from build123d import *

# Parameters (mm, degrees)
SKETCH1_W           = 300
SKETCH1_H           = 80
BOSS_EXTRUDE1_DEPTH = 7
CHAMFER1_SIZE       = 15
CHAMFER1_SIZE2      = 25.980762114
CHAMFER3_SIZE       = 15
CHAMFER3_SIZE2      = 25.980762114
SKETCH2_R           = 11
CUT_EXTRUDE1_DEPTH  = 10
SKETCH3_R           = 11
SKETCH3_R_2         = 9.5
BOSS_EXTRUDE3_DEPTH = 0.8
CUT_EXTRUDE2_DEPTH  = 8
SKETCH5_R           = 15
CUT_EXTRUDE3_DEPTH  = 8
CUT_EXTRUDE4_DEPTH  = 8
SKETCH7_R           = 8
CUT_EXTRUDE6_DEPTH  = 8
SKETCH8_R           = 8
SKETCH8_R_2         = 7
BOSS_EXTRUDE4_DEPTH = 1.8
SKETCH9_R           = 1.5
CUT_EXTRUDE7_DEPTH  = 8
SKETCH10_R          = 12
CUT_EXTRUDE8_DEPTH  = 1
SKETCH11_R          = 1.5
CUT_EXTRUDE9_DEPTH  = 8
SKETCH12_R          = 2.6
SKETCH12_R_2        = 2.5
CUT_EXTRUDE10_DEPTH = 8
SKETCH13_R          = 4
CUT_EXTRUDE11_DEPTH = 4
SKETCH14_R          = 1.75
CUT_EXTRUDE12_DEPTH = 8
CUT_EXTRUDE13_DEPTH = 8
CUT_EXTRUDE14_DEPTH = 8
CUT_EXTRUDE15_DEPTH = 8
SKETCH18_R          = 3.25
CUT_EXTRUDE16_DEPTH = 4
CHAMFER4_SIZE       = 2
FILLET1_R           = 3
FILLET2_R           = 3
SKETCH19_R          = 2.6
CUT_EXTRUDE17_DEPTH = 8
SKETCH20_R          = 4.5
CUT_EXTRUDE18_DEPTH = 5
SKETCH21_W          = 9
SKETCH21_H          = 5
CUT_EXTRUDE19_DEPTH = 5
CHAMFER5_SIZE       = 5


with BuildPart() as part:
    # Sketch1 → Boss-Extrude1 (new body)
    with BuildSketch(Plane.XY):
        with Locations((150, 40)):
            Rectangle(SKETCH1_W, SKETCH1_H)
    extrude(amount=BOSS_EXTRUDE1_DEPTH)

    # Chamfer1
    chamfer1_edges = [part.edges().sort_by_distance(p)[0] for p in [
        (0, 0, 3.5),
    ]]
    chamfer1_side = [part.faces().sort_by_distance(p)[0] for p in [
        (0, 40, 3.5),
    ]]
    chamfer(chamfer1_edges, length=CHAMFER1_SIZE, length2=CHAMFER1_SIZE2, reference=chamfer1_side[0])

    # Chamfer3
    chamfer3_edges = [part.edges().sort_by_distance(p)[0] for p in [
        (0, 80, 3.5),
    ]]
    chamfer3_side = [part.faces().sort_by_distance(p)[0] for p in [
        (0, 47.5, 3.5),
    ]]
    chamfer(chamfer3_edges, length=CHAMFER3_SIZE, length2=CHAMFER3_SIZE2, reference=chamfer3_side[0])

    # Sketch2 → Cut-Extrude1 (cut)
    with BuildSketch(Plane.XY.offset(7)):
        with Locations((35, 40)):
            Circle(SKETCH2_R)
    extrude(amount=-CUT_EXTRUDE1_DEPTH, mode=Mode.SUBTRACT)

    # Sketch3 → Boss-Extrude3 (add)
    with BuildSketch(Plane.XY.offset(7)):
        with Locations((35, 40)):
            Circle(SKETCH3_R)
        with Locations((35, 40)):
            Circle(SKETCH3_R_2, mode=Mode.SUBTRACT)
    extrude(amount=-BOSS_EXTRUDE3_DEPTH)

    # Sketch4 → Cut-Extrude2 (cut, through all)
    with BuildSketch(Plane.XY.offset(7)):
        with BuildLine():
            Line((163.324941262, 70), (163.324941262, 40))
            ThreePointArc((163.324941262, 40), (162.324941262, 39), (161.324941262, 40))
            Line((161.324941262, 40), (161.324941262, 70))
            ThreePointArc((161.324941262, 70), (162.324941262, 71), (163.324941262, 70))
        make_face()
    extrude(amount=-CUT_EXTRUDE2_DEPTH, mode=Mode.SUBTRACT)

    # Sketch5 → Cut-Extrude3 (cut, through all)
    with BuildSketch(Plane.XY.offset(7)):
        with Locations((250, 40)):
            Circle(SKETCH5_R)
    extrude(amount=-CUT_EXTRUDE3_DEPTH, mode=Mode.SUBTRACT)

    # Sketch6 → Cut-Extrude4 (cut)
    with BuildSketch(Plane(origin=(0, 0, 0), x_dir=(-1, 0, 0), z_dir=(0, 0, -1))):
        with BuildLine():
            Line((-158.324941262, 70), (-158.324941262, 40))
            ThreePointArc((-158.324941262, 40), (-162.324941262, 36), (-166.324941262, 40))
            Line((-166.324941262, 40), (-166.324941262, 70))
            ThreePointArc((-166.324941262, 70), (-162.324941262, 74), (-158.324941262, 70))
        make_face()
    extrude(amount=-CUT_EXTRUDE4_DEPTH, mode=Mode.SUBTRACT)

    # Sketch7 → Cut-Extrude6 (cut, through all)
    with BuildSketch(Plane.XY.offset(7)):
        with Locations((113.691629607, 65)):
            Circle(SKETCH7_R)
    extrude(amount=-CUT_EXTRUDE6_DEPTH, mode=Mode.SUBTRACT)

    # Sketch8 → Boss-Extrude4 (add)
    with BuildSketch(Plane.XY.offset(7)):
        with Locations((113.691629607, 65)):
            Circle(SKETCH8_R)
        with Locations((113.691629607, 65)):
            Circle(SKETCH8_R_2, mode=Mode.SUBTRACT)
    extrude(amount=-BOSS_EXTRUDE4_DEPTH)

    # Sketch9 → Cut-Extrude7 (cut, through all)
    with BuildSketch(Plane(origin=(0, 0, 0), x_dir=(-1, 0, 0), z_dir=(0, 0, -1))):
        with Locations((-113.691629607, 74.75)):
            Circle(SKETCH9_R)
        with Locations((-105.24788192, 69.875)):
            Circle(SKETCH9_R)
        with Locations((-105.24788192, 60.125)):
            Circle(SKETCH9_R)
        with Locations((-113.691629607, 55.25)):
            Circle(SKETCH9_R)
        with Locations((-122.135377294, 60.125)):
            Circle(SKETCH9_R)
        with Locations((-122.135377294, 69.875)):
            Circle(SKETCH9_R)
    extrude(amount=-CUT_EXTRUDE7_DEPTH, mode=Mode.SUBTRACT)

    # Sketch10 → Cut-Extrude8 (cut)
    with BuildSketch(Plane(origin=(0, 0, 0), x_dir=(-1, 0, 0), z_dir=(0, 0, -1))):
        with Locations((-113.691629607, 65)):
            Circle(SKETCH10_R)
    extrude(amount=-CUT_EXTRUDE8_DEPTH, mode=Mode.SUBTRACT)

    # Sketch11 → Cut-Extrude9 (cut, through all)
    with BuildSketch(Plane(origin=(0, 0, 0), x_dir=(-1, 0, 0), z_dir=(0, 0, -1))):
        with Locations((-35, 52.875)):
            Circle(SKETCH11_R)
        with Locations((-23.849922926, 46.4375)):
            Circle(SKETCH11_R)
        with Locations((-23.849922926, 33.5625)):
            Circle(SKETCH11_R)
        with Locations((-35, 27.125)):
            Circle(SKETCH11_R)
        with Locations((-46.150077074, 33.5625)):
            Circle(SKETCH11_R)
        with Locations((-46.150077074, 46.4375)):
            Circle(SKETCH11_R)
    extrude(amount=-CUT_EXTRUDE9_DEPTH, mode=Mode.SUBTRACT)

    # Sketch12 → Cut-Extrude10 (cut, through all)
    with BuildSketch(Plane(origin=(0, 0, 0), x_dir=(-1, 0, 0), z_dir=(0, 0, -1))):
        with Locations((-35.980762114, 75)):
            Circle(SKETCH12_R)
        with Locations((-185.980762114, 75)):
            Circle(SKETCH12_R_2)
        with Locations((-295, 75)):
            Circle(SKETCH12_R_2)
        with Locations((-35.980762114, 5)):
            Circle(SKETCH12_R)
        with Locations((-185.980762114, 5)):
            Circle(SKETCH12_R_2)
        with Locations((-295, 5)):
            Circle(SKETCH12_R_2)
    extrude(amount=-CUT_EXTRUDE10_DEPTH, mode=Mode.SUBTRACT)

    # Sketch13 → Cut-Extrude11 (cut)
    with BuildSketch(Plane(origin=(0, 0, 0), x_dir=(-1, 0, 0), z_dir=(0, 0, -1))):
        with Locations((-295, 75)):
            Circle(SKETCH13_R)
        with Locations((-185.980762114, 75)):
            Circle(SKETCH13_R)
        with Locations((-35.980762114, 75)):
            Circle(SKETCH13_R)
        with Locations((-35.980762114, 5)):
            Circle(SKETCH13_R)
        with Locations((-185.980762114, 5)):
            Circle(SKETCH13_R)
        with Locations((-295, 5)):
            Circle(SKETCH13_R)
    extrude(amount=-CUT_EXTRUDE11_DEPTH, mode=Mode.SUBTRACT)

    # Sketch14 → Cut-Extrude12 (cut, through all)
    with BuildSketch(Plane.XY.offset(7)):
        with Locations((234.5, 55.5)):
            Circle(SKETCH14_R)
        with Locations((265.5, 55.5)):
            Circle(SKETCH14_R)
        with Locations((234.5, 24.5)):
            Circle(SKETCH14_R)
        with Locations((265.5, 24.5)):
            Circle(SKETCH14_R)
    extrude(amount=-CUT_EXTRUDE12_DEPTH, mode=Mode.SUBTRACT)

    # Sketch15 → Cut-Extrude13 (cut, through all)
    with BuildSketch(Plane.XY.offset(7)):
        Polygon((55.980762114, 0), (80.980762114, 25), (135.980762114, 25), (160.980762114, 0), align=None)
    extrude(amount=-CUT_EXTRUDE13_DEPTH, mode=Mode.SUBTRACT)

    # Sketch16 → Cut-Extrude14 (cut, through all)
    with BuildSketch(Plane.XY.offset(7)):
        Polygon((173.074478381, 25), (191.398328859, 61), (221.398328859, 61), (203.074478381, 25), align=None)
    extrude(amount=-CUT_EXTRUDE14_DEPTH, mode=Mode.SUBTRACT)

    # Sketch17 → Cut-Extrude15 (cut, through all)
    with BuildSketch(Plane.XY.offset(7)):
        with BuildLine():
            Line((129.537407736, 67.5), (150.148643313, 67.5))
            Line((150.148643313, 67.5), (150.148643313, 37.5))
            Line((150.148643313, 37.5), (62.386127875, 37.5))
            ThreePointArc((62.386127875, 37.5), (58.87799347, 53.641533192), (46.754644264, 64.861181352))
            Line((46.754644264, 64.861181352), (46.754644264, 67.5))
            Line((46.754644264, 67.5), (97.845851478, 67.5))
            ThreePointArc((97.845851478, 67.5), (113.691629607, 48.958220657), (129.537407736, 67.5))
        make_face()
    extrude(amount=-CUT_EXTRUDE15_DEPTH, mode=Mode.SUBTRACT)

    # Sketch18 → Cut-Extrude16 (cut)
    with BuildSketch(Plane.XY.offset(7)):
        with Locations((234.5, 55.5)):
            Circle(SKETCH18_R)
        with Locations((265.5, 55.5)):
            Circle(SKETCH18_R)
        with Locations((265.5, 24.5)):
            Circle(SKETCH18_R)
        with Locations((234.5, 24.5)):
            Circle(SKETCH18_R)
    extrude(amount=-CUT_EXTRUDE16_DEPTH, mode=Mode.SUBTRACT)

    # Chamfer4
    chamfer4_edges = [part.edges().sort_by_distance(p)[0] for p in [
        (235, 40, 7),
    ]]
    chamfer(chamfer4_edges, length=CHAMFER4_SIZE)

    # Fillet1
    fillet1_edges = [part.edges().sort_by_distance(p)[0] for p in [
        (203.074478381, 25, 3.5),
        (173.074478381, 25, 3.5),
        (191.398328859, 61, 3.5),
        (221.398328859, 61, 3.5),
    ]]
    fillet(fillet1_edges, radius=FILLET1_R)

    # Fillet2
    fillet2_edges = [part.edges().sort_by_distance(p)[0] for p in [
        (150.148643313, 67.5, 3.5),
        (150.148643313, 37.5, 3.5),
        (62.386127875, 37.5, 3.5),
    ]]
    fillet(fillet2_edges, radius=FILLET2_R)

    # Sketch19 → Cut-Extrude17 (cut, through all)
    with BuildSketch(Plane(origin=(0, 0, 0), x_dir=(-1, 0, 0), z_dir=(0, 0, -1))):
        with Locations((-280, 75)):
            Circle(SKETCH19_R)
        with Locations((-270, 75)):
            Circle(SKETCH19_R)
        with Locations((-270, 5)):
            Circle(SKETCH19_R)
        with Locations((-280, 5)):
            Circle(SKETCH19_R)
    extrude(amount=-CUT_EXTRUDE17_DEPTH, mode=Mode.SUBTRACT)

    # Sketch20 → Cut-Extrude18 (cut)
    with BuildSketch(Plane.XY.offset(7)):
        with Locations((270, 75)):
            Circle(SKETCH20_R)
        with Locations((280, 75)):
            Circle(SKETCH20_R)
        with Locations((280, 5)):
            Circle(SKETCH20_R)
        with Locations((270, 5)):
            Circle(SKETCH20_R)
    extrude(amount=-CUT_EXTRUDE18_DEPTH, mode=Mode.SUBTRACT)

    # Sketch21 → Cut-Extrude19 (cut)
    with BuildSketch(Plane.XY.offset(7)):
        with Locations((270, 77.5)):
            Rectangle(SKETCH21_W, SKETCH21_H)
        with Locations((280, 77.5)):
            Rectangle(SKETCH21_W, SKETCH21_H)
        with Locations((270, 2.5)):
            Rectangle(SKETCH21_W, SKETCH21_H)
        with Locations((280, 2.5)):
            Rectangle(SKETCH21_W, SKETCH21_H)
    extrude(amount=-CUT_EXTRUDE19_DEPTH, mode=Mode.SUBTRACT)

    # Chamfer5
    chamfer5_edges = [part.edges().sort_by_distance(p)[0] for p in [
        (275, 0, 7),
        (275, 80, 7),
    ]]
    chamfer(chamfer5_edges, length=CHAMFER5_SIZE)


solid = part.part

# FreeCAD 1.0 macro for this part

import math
import FreeCAD as App
import Part
import Sketcher

V = App.Vector


def edges_at(feature, points):
    """Names of the edges that pass closest to the given points."""
    edges = feature.Shape.Edges
    near = lambda p: min(range(len(edges)), key=lambda i: edges[i].distToShape(Part.Vertex(*p))[0])
    return sorted({f"Edge{near(p) + 1}" for p in points})

doc = App.newDocument("Part")
body = doc.addObject("PartDesign::Body", "Body")

sketch1 = doc.addObject("Sketcher::SketchObject", "Sketch")
body.addObject(sketch1)
sketch1.AttachmentSupport = (doc.XY_Plane, [""])
sketch1.MapMode = "FlatFace"
sketch1.addGeometry([
    Part.LineSegment(V(0, 80, 0), V(0, 0, 0)),
    Part.LineSegment(V(0, 0, 0), V(300, 0, 0)),
    Part.LineSegment(V(300, 0, 0), V(300, 80, 0)),
    Part.LineSegment(V(300, 80, 0), V(0, 80, 0)),
], False)
sketch1.addConstraint([
    Sketcher.Constraint("Coincident", 0, 2, 1, 1),
    Sketcher.Constraint("Coincident", 1, 2, 2, 1),
    Sketcher.Constraint("Coincident", 2, 2, 3, 1),
    Sketcher.Constraint("Coincident", 3, 2, 0, 1),
    Sketcher.Constraint("Vertical", 0),
    Sketcher.Constraint("Horizontal", 1),
    Sketcher.Constraint("Vertical", 2),
    Sketcher.Constraint("Horizontal", 3),
    Sketcher.Constraint("Coincident", 0, 2, -1, 1),
    Sketcher.Constraint("DistanceX", 1, 1, 1, 2, 300.0),
    Sketcher.Constraint("DistanceY", 0, 2, 0, 1, 80.0),
])
pad1 = doc.addObject("PartDesign::Pad", "Pad")
body.addObject(pad1)
pad1.Profile = sketch1
pad1.Length = 7
doc.recompute()

chamfer = doc.addObject("PartDesign::Chamfer", "Chamfer")
body.addObject(chamfer)
chamfer.Base = (pad1, edges_at(pad1, [(0, 0, 3.5)]))
chamfer.ChamferType = "Two distances"
chamfer.Size = 15
chamfer.Size2 = 25.980762
doc.recompute()

chamfer2 = doc.addObject("PartDesign::Chamfer", "Chamfer001")
body.addObject(chamfer2)
chamfer2.Base = (chamfer, edges_at(chamfer, [(0, 80, 3.5)]))
chamfer2.ChamferType = "Two distances"
chamfer2.Size = 15
chamfer2.Size2 = 25.980762

sketch2 = doc.addObject("Sketcher::SketchObject", "Sketch001")
body.addObject(sketch2)
sketch2.AttachmentSupport = (doc.XY_Plane, [""])
sketch2.MapMode = "FlatFace"
sketch2.AttachmentOffset = App.Placement(V(0, 0, 7), App.Rotation())
sketch2.addGeometry(Part.Circle(V(35, 40, 0), V(0, 0, 1), 11), False)
sketch2.addConstraint([
    Sketcher.Constraint("Diameter", 0, 22.0),
    Sketcher.Constraint("DistanceX", -1, 1, 0, 3, 35.0),
    Sketcher.Constraint("DistanceY", -1, 1, 0, 3, 40.0),
])
pocket1 = doc.addObject("PartDesign::Pocket", "Pocket")
body.addObject(pocket1)
pocket1.Profile = sketch2
pocket1.Length = 10

sketch3 = doc.addObject("Sketcher::SketchObject", "Sketch002")
body.addObject(sketch3)
sketch3.AttachmentSupport = (doc.XY_Plane, [""])
sketch3.MapMode = "FlatFace"
sketch3.AttachmentOffset = App.Placement(V(0, 0, 7), App.Rotation())
sketch3.addGeometry([
    Part.Circle(V(35, 40, 0), V(0, 0, 1), 11),
    Part.Circle(V(35, 40, 0), V(0, 0, 1), 10),
], False)
sketch3.addConstraint([
    Sketcher.Constraint("Coincident", 1, 3, 0, 3),
    Sketcher.Constraint("Diameter", 0, 22.0),
    Sketcher.Constraint("Diameter", 1, 19.0),
    Sketcher.Constraint("DistanceX", -1, 1, 0, 3, 35.0),
    Sketcher.Constraint("DistanceY", -1, 1, 0, 3, 40.0),
])
pad2 = doc.addObject("PartDesign::Pad", "Pad001")
body.addObject(pad2)
pad2.Profile = sketch3
pad2.Length = 0.8
pad2.Reversed = True

sketch4 = doc.addObject("Sketcher::SketchObject", "Sketch003")
body.addObject(sketch4)
sketch4.AttachmentSupport = (doc.XY_Plane, [""])
sketch4.MapMode = "FlatFace"
sketch4.AttachmentOffset = App.Placement(V(0, 0, 7), App.Rotation())
sketch4.addGeometry([
    Part.LineSegment(V(163.3, 40, 0), V(163.3, 70, 0)),
    Part.ArcOfCircle(Part.Circle(V(162.3, 70, 0), V(0, 0, 1), 1), math.radians(0), math.radians(180)),
    Part.LineSegment(V(161.3, 70, 0), V(161.3, 40, 0)),
    Part.ArcOfCircle(Part.Circle(V(162.3, 40, 0), V(0, 0, 1), 1), math.radians(180), math.radians(360)),
], False)
sketch4.addConstraint([
    Sketcher.Constraint("Tangent", 0, 2, 1, 1),
    Sketcher.Constraint("Tangent", 1, 2, 2, 1),
    Sketcher.Constraint("Tangent", 2, 2, 3, 1),
    Sketcher.Constraint("Tangent", 3, 2, 0, 1),
    Sketcher.Constraint("Vertical", 0),
    Sketcher.Constraint("Vertical", 2),
    Sketcher.Constraint("Radius", 1, 1.0),
    Sketcher.Constraint("DistanceY", 0, 1, 0, 2, 30.0),
    Sketcher.Constraint("DistanceY", -1, 1, 1, 3, 70.0),
    Sketcher.Constraint("DistanceX", -1, 1, 1, 3, 162.324941),
])
pocket2 = doc.addObject("PartDesign::Pocket", "Pocket001")
body.addObject(pocket2)
pocket2.Profile = sketch4
pocket2.Type = "ThroughAll"

sketch5 = doc.addObject("Sketcher::SketchObject", "Sketch004")
body.addObject(sketch5)
sketch5.AttachmentSupport = (doc.XY_Plane, [""])
sketch5.MapMode = "FlatFace"
sketch5.AttachmentOffset = App.Placement(V(0, 0, 7), App.Rotation())
sketch5.addGeometry(Part.Circle(V(250, 40, 0), V(0, 0, 1), 15), False)
sketch5.addConstraint([
    Sketcher.Constraint("Diameter", 0, 30.0),
    Sketcher.Constraint("DistanceX", -1, 1, 0, 3, 250.0),
    Sketcher.Constraint("DistanceY", -1, 1, 0, 3, 40.0),
])
pocket3 = doc.addObject("PartDesign::Pocket", "Pocket002")
body.addObject(pocket3)
pocket3.Profile = sketch5
pocket3.Type = "ThroughAll"

sketch6 = doc.addObject("Sketcher::SketchObject", "Sketch005")
body.addObject(sketch6)
sketch6.AttachmentSupport = (doc.XY_Plane, [""])
sketch6.MapMode = "FlatFace"
sketch6.addGeometry([
    Part.LineSegment(V(158.3, 40, 0), V(158.3, 70, 0)),
    Part.ArcOfCircle(Part.Circle(V(162.3, 70, 0), V(0, 0, 1), 4), math.radians(0), math.radians(180)),
    Part.LineSegment(V(166.3, 70, 0), V(166.3, 40, 0)),
    Part.ArcOfCircle(Part.Circle(V(162.3, 40, 0), V(0, 0, 1), 4), math.radians(180), math.radians(360)),
], False)
sketch6.addConstraint([
    Sketcher.Constraint("Tangent", 0, 2, 1, 2),
    Sketcher.Constraint("Tangent", 1, 1, 2, 1),
    Sketcher.Constraint("Tangent", 2, 2, 3, 2),
    Sketcher.Constraint("Tangent", 3, 1, 0, 1),
    Sketcher.Constraint("Vertical", 0),
    Sketcher.Constraint("Vertical", 2),
    Sketcher.Constraint("Radius", 1, 4.0),
    Sketcher.Constraint("DistanceY", 0, 1, 0, 2, 30.0),
    Sketcher.Constraint("DistanceY", -1, 1, 1, 3, 70.0),
    Sketcher.Constraint("DistanceX", -1, 1, 1, 3, 162.324941),
])
pocket4 = doc.addObject("PartDesign::Pocket", "Pocket003")
body.addObject(pocket4)
pocket4.Profile = sketch6
pocket4.Length = 8
pocket4.Reversed = True

sketch7 = doc.addObject("Sketcher::SketchObject", "Sketch006")
body.addObject(sketch7)
sketch7.AttachmentSupport = (doc.XY_Plane, [""])
sketch7.MapMode = "FlatFace"
sketch7.AttachmentOffset = App.Placement(V(0, 0, 7), App.Rotation())
sketch7.addGeometry(Part.Circle(V(114, 65, 0), V(0, 0, 1), 8), False)
sketch7.addConstraint([
    Sketcher.Constraint("Diameter", 0, 16.0),
    Sketcher.Constraint("DistanceY", -1, 1, 0, 3, 65.0),
    Sketcher.Constraint("DistanceX", -1, 1, 0, 3, 113.69163),
])
pocket5 = doc.addObject("PartDesign::Pocket", "Pocket004")
body.addObject(pocket5)
pocket5.Profile = sketch7
pocket5.Type = "ThroughAll"

sketch8 = doc.addObject("Sketcher::SketchObject", "Sketch007")
body.addObject(sketch8)
sketch8.AttachmentSupport = (doc.XY_Plane, [""])
sketch8.MapMode = "FlatFace"
sketch8.AttachmentOffset = App.Placement(V(0, 0, 7), App.Rotation())
sketch8.addGeometry([
    Part.Circle(V(114, 65, 0), V(0, 0, 1), 8),
    Part.Circle(V(114, 65, 0), V(0, 0, 1), 7),
], False)
sketch8.addConstraint([
    Sketcher.Constraint("Coincident", 1, 3, 0, 3),
    Sketcher.Constraint("Diameter", 0, 16.0),
    Sketcher.Constraint("Diameter", 1, 14.0),
    Sketcher.Constraint("DistanceY", -1, 1, 0, 3, 65.0),
    Sketcher.Constraint("DistanceX", -1, 1, 0, 3, 113.69163),
])
pad3 = doc.addObject("PartDesign::Pad", "Pad002")
body.addObject(pad3)
pad3.Profile = sketch8
pad3.Length = 1.8
pad3.Reversed = True

sketch9 = doc.addObject("Sketcher::SketchObject", "Sketch008")
body.addObject(sketch9)
sketch9.AttachmentSupport = (doc.XY_Plane, [""])
sketch9.MapMode = "FlatFace"
sketch9.addGeometry([
    Part.Circle(V(113.7, 74.8, 0), V(0, 0, 1), 1.5),
    Part.Circle(V(105.2, 69.9, 0), V(0, 0, 1), 1.5),
    Part.Circle(V(105.2, 60.1, 0), V(0, 0, 1), 1.5),
    Part.Circle(V(113.7, 55.2, 0), V(0, 0, 1), 1.5),
    Part.Circle(V(122.1, 60.1, 0), V(0, 0, 1), 1.5),
    Part.Circle(V(122.1, 69.9, 0), V(0, 0, 1), 1.5),
], False)
sketch9.addConstraint([
    Sketcher.Constraint("Equal", 0, 1),
    Sketcher.Constraint("Equal", 1, 2),
    Sketcher.Constraint("Equal", 2, 3),
    Sketcher.Constraint("Equal", 3, 4),
    Sketcher.Constraint("Equal", 4, 5),
    Sketcher.Constraint("Horizontal", 2, 3, 4, 3),
    Sketcher.Constraint("Horizontal", 1, 3, 5, 3),
    Sketcher.Constraint("Vertical", 1, 3, 2, 3),
    Sketcher.Constraint("Vertical", 0, 3, 3, 3),
    Sketcher.Constraint("Vertical", 4, 3, 5, 3),
    Sketcher.Constraint("Diameter", 0, 3.0),
    Sketcher.Constraint("DistanceY", 3, 3, 0, 3, 19.5),
    Sketcher.Constraint("DistanceY", -1, 1, 0, 3, 74.75),
    Sketcher.Constraint("DistanceY", 2, 3, 1, 3, 9.75),
    Sketcher.Constraint("DistanceY", -1, 1, 1, 3, 69.875),
    Sketcher.Constraint("DistanceX", -1, 1, 0, 3, 113.69163),
    Sketcher.Constraint("DistanceX", -1, 1, 1, 3, 105.247882),
    Sketcher.Constraint("DistanceX", -1, 1, 4, 3, 122.135377),
])
pocket6 = doc.addObject("PartDesign::Pocket", "Pocket005")
body.addObject(pocket6)
pocket6.Profile = sketch9
pocket6.Type = "ThroughAll"
pocket6.Reversed = True

sketch10 = doc.addObject("Sketcher::SketchObject", "Sketch009")
body.addObject(sketch10)
sketch10.AttachmentSupport = (doc.XY_Plane, [""])
sketch10.MapMode = "FlatFace"
sketch10.addGeometry(Part.Circle(V(114, 65, 0), V(0, 0, 1), 12), False)
sketch10.addConstraint([
    Sketcher.Constraint("Diameter", 0, 24.0),
    Sketcher.Constraint("DistanceY", -1, 1, 0, 3, 65.0),
    Sketcher.Constraint("DistanceX", -1, 1, 0, 3, 113.69163),
])
pocket7 = doc.addObject("PartDesign::Pocket", "Pocket006")
body.addObject(pocket7)
pocket7.Profile = sketch10
pocket7.Length = 1
pocket7.Reversed = True

sketch11 = doc.addObject("Sketcher::SketchObject", "Sketch010")
body.addObject(sketch11)
sketch11.AttachmentSupport = (doc.XY_Plane, [""])
sketch11.MapMode = "FlatFace"
sketch11.addGeometry([
    Part.Circle(V(35, 52.9, 0), V(0, 0, 1), 1.5),
    Part.Circle(V(23.8, 46.4, 0), V(0, 0, 1), 1.5),
    Part.Circle(V(23.8, 33.6, 0), V(0, 0, 1), 1.5),
    Part.Circle(V(35, 27.1, 0), V(0, 0, 1), 1.5),
    Part.Circle(V(46.2, 33.6, 0), V(0, 0, 1), 1.5),
    Part.Circle(V(46.2, 46.4, 0), V(0, 0, 1), 1.5),
], False)
sketch11.addConstraint([
    Sketcher.Constraint("Equal", 0, 1),
    Sketcher.Constraint("Equal", 1, 2),
    Sketcher.Constraint("Equal", 2, 3),
    Sketcher.Constraint("Equal", 3, 4),
    Sketcher.Constraint("Equal", 4, 5),
    Sketcher.Constraint("Horizontal", 2, 3, 4, 3),
    Sketcher.Constraint("Horizontal", 1, 3, 5, 3),
    Sketcher.Constraint("Vertical", 1, 3, 2, 3),
    Sketcher.Constraint("Vertical", 0, 3, 3, 3),
    Sketcher.Constraint("Vertical", 4, 3, 5, 3),
    Sketcher.Constraint("Diameter", 0, 3.0),
    Sketcher.Constraint("DistanceX", -1, 1, 0, 3, 35.0),
    Sketcher.Constraint("DistanceY", 3, 3, 0, 3, 25.75),
    Sketcher.Constraint("DistanceY", -1, 1, 0, 3, 52.875),
    Sketcher.Constraint("DistanceY", 2, 3, 1, 3, 12.875),
    Sketcher.Constraint("DistanceY", -1, 1, 1, 3, 46.4375),
    Sketcher.Constraint("DistanceX", -1, 1, 1, 3, 23.849923),
    Sketcher.Constraint("DistanceX", -1, 1, 4, 3, 46.150077),
])
pocket8 = doc.addObject("PartDesign::Pocket", "Pocket007")
body.addObject(pocket8)
pocket8.Profile = sketch11
pocket8.Type = "ThroughAll"
pocket8.Reversed = True

sketch12 = doc.addObject("Sketcher::SketchObject", "Sketch011")
body.addObject(sketch12)
sketch12.AttachmentSupport = (doc.XY_Plane, [""])
sketch12.MapMode = "FlatFace"
sketch12.addGeometry([
    Part.Circle(V(36, 75, 0), V(0, 0, 1), 2.6),
    Part.Circle(V(186, 75, 0), V(0, 0, 1), 2.5),
    Part.Circle(V(295, 75, 0), V(0, 0, 1), 2.5),
    Part.Circle(V(36, 5, 0), V(0, 0, 1), 2.6),
    Part.Circle(V(186, 5, 0), V(0, 0, 1), 2.5),
    Part.Circle(V(295, 5, 0), V(0, 0, 1), 2.5),
], False)
sketch12.addConstraint([
    Sketcher.Constraint("Equal", 1, 2),
    Sketcher.Constraint("Equal", 0, 3),
    Sketcher.Constraint("Equal", 2, 4),
    Sketcher.Constraint("Equal", 4, 5),
    Sketcher.Constraint("Horizontal", 0, 3, 1, 3),
    Sketcher.Constraint("Horizontal", 1, 3, 2, 3),
    Sketcher.Constraint("Horizontal", 3, 3, 4, 3),
    Sketcher.Constraint("Horizontal", 4, 3, 5, 3),
    Sketcher.Constraint("Vertical", 0, 3, 3, 3),
    Sketcher.Constraint("Vertical", 1, 3, 4, 3),
    Sketcher.Constraint("Vertical", 2, 3, 5, 3),
    Sketcher.Constraint("Diameter", 1, 5.0),
    Sketcher.Constraint("Diameter", 0, 5.2),
    Sketcher.Constraint("DistanceY", -1, 1, 0, 3, 75.0),
    Sketcher.Constraint("DistanceX", -1, 1, 2, 3, 295.0),
    Sketcher.Constraint("DistanceY", -1, 1, 3, 3, 5.0),
    Sketcher.Constraint("DistanceX", 0, 3, 1, 3, 150.0),
    Sketcher.Constraint("DistanceX", -1, 1, 0, 3, 35.980762),
])
pocket9 = doc.addObject("PartDesign::Pocket", "Pocket008")
body.addObject(pocket9)
pocket9.Profile = sketch12
pocket9.Type = "ThroughAll"
pocket9.Reversed = True

sketch13 = doc.addObject("Sketcher::SketchObject", "Sketch012")
body.addObject(sketch13)
sketch13.AttachmentSupport = (doc.XY_Plane, [""])
sketch13.MapMode = "FlatFace"
sketch13.addGeometry([
    Part.Circle(V(295, 75, 0), V(0, 0, 1), 4),
    Part.Circle(V(186, 75, 0), V(0, 0, 1), 4),
    Part.Circle(V(36, 75, 0), V(0, 0, 1), 4),
    Part.Circle(V(36, 5, 0), V(0, 0, 1), 4),
    Part.Circle(V(186, 5, 0), V(0, 0, 1), 4),
    Part.Circle(V(295, 5, 0), V(0, 0, 1), 4),
], False)
sketch13.addConstraint([
    Sketcher.Constraint("Equal", 0, 1),
    Sketcher.Constraint("Equal", 1, 2),
    Sketcher.Constraint("Equal", 2, 3),
    Sketcher.Constraint("Equal", 3, 4),
    Sketcher.Constraint("Equal", 4, 5),
    Sketcher.Constraint("Horizontal", 0, 3, 1, 3),
    Sketcher.Constraint("Horizontal", 1, 3, 2, 3),
    Sketcher.Constraint("Horizontal", 3, 3, 4, 3),
    Sketcher.Constraint("Horizontal", 4, 3, 5, 3),
    Sketcher.Constraint("Vertical", 2, 3, 3, 3),
    Sketcher.Constraint("Vertical", 1, 3, 4, 3),
    Sketcher.Constraint("Vertical", 0, 3, 5, 3),
    Sketcher.Constraint("Diameter", 0, 8.0),
    Sketcher.Constraint("DistanceX", -1, 1, 0, 3, 295.0),
    Sketcher.Constraint("DistanceY", -1, 1, 0, 3, 75.0),
    Sketcher.Constraint("DistanceY", -1, 1, 3, 3, 5.0),
    Sketcher.Constraint("DistanceX", 2, 3, 1, 3, 150.0),
    Sketcher.Constraint("DistanceX", -1, 1, 1, 3, 185.980762),
])
pocket10 = doc.addObject("PartDesign::Pocket", "Pocket009")
body.addObject(pocket10)
pocket10.Profile = sketch13
pocket10.Length = 4
pocket10.Reversed = True

sketch14 = doc.addObject("Sketcher::SketchObject", "Sketch013")
body.addObject(sketch14)
sketch14.AttachmentSupport = (doc.XY_Plane, [""])
sketch14.MapMode = "FlatFace"
sketch14.AttachmentOffset = App.Placement(V(0, 0, 7), App.Rotation())
sketch14.addGeometry([
    Part.Circle(V(234.5, 55.5, 0), V(0, 0, 1), 1.8),
    Part.Circle(V(265.5, 55.5, 0), V(0, 0, 1), 1.8),
    Part.Circle(V(234.5, 24.5, 0), V(0, 0, 1), 1.8),
    Part.Circle(V(265.5, 24.5, 0), V(0, 0, 1), 1.8),
], False)
sketch14.addConstraint([
    Sketcher.Constraint("Equal", 0, 1),
    Sketcher.Constraint("Equal", 1, 2),
    Sketcher.Constraint("Equal", 2, 3),
    Sketcher.Constraint("Horizontal", 0, 3, 1, 3),
    Sketcher.Constraint("Horizontal", 2, 3, 3, 3),
    Sketcher.Constraint("Vertical", 0, 3, 2, 3),
    Sketcher.Constraint("Vertical", 1, 3, 3, 3),
    Sketcher.Constraint("Diameter", 0, 3.5),
    Sketcher.Constraint("DistanceX", 0, 3, 1, 3, 31.0),
    Sketcher.Constraint("DistanceY", 2, 3, 0, 3, 31.0),
    Sketcher.Constraint("DistanceX", -1, 1, 0, 3, 234.5),
    Sketcher.Constraint("DistanceY", -1, 1, 0, 3, 55.5),
])
pocket11 = doc.addObject("PartDesign::Pocket", "Pocket010")
body.addObject(pocket11)
pocket11.Profile = sketch14
pocket11.Type = "ThroughAll"

sketch15 = doc.addObject("Sketcher::SketchObject", "Sketch014")
body.addObject(sketch15)
sketch15.AttachmentSupport = (doc.XY_Plane, [""])
sketch15.MapMode = "FlatFace"
sketch15.AttachmentOffset = App.Placement(V(0, 0, 7), App.Rotation())
sketch15.addGeometry([
    Part.LineSegment(V(81, 25, 0), V(56, 0, 0)),
    Part.LineSegment(V(56, 0, 0), V(161, 0, 0)),
    Part.LineSegment(V(161, 0, 0), V(136, 25, 0)),
    Part.LineSegment(V(136, 25, 0), V(81, 25, 0)),
], False)
sketch15.addConstraint([
    Sketcher.Constraint("Coincident", 0, 2, 1, 1),
    Sketcher.Constraint("Coincident", 1, 2, 2, 1),
    Sketcher.Constraint("Coincident", 2, 2, 3, 1),
    Sketcher.Constraint("Coincident", 3, 2, 0, 1),
    Sketcher.Constraint("Horizontal", 1),
    Sketcher.Constraint("Horizontal", 3),
    Sketcher.Constraint("PointOnObject", 0, 2, -1),
    Sketcher.Constraint("Perpendicular", 0, 2),
    Sketcher.Constraint("Equal", 0, 2),
    Sketcher.Constraint("DistanceX", 1, 1, 1, 2, 105.0),
    Sketcher.Constraint("DistanceX", 3, 2, 3, 1, 55.0),
    Sketcher.Constraint("DistanceX", -1, 1, 0, 2, 55.980762),
])
pocket12 = doc.addObject("PartDesign::Pocket", "Pocket011")
body.addObject(pocket12)
pocket12.Profile = sketch15
pocket12.Type = "ThroughAll"

sketch16 = doc.addObject("Sketcher::SketchObject", "Sketch015")
body.addObject(sketch16)
sketch16.AttachmentSupport = (doc.XY_Plane, [""])
sketch16.MapMode = "FlatFace"
sketch16.AttachmentOffset = App.Placement(V(0, 0, 7), App.Rotation())
sketch16.addGeometry([
    Part.LineSegment(V(191, 61, 0), V(173, 25, 0)),
    Part.LineSegment(V(173, 25, 0), V(203, 25, 0)),
    Part.LineSegment(V(203, 25, 0), V(221, 61, 0)),
    Part.LineSegment(V(221, 61, 0), V(191, 61, 0)),
], False)
sketch16.addConstraint([
    Sketcher.Constraint("Coincident", 0, 2, 1, 1),
    Sketcher.Constraint("Coincident", 1, 2, 2, 1),
    Sketcher.Constraint("Coincident", 2, 2, 3, 1),
    Sketcher.Constraint("Coincident", 3, 2, 0, 1),
    Sketcher.Constraint("Horizontal", 1),
    Sketcher.Constraint("Horizontal", 3),
    Sketcher.Constraint("Parallel", 0, 2),
    Sketcher.Constraint("DistanceX", 1, 1, 1, 2, 30.0),
    Sketcher.Constraint("DistanceY", -1, 1, 0, 2, 25.0),
    Sketcher.Constraint("DistanceY", -1, 1, 2, 2, 61.0),
    Sketcher.Constraint("DistanceX", -1, 1, 0, 2, 173.074478),
    Sketcher.Constraint("DistanceX", -1, 1, 2, 2, 221.398329),
])
pocket13 = doc.addObject("PartDesign::Pocket", "Pocket012")
body.addObject(pocket13)
pocket13.Profile = sketch16
pocket13.Type = "ThroughAll"

sketch17 = doc.addObject("Sketcher::SketchObject", "Sketch016")
body.addObject(sketch17)
sketch17.AttachmentSupport = (doc.XY_Plane, [""])
sketch17.MapMode = "FlatFace"
sketch17.AttachmentOffset = App.Placement(V(0, 0, 7), App.Rotation())
sketch17.addGeometry([
    Part.LineSegment(V(150.1, 67.5, 0), V(129.5, 67.5, 0)),
    Part.ArcOfCircle(Part.Circle(V(113.7, 65, 0), V(0, 0, 1), 16), math.radians(171), math.radians(369)),
    Part.LineSegment(V(97.8, 67.5, 0), V(46.8, 67.5, 0)),
    Part.LineSegment(V(46.8, 67.5, 0), V(46.8, 64.9, 0)),
    Part.ArcOfCircle(Part.Circle(V(35, 40, 0), V(0, 0, 1), 27.5), math.radians(-5), math.radians(65)),
    Part.LineSegment(V(62.4, 37.5, 0), V(150.1, 37.5, 0)),
    Part.LineSegment(V(150.1, 37.5, 0), V(150.1, 67.5, 0)),
], False)
sketch17.addConstraint([
    Sketcher.Constraint("Coincident", 0, 2, 1, 2),
    Sketcher.Constraint("Coincident", 1, 1, 2, 1),
    Sketcher.Constraint("Coincident", 2, 2, 3, 1),
    Sketcher.Constraint("Coincident", 3, 2, 4, 2),
    Sketcher.Constraint("Coincident", 4, 1, 5, 1),
    Sketcher.Constraint("Coincident", 5, 2, 6, 1),
    Sketcher.Constraint("Coincident", 6, 2, 0, 1),
    Sketcher.Constraint("Horizontal", 0),
    Sketcher.Constraint("Horizontal", 2),
    Sketcher.Constraint("Vertical", 3),
    Sketcher.Constraint("Horizontal", 5),
    Sketcher.Constraint("Vertical", 6),
    Sketcher.Constraint("Horizontal", 0, 2, 1, 1),
    Sketcher.Constraint("Radius", 4, 27.5),
    Sketcher.Constraint("DistanceY", 6, 1, 6, 2, 30.0),
    Sketcher.Constraint("DistanceY", -1, 1, 1, 3, 65.0),
    Sketcher.Constraint("DistanceX", -1, 1, 4, 3, 35.0),
    Sketcher.Constraint("DistanceY", -1, 1, 4, 3, 40.0),
    Sketcher.Constraint("DistanceY", -1, 1, 0, 2, 67.5),
    Sketcher.Constraint("Radius", 1, 16.041779),
    Sketcher.Constraint("DistanceX", 3, 2, 5, 2, 103.393999),
    Sketcher.Constraint("DistanceY", 3, 2, 3, 1, 2.638819),
    Sketcher.Constraint("DistanceX", 4, 1, 1, 3, 51.305502),
])
pocket14 = doc.addObject("PartDesign::Pocket", "Pocket013")
body.addObject(pocket14)
pocket14.Profile = sketch17
pocket14.Type = "ThroughAll"

sketch18 = doc.addObject("Sketcher::SketchObject", "Sketch017")
body.addObject(sketch18)
sketch18.AttachmentSupport = (doc.XY_Plane, [""])
sketch18.MapMode = "FlatFace"
sketch18.AttachmentOffset = App.Placement(V(0, 0, 7), App.Rotation())
sketch18.addGeometry([
    Part.Circle(V(234.5, 55.5, 0), V(0, 0, 1), 3.2),
    Part.Circle(V(265.5, 55.5, 0), V(0, 0, 1), 3.2),
    Part.Circle(V(265.5, 24.5, 0), V(0, 0, 1), 3.2),
    Part.Circle(V(234.5, 24.5, 0), V(0, 0, 1), 3.2),
], False)
sketch18.addConstraint([
    Sketcher.Constraint("Equal", 0, 1),
    Sketcher.Constraint("Equal", 1, 2),
    Sketcher.Constraint("Equal", 2, 3),
    Sketcher.Constraint("Horizontal", 0, 3, 1, 3),
    Sketcher.Constraint("Horizontal", 2, 3, 3, 3),
    Sketcher.Constraint("Vertical", 1, 3, 2, 3),
    Sketcher.Constraint("Vertical", 0, 3, 3, 3),
    Sketcher.Constraint("Diameter", 0, 6.5),
    Sketcher.Constraint("DistanceX", 0, 3, 1, 3, 31.0),
    Sketcher.Constraint("DistanceY", 2, 3, 1, 3, 31.0),
    Sketcher.Constraint("DistanceX", -1, 1, 0, 3, 234.5),
    Sketcher.Constraint("DistanceY", -1, 1, 0, 3, 55.5),
])
pocket15 = doc.addObject("PartDesign::Pocket", "Pocket014")
body.addObject(pocket15)
pocket15.Profile = sketch18
pocket15.Length = 4
doc.recompute()

chamfer3 = doc.addObject("PartDesign::Chamfer", "Chamfer002")
body.addObject(chamfer3)
chamfer3.Base = (pocket15, edges_at(pocket15, [(235, 40, 7)]))
chamfer3.Size = 2
doc.recompute()

fillet = doc.addObject("PartDesign::Fillet", "Fillet")
body.addObject(fillet)
fillet.Base = (chamfer3, edges_at(chamfer3, [
    (203.074, 25, 3.5),
    (173.074, 25, 3.5),
    (191.398, 61, 3.5),
    (221.398, 61, 3.5),
]))
fillet.Radius = 3
doc.recompute()

fillet2 = doc.addObject("PartDesign::Fillet", "Fillet001")
body.addObject(fillet2)
fillet2.Base = (fillet, edges_at(fillet, [(150.149, 67.5, 3.5), (150.149, 37.5, 3.5), (62.386, 37.5, 3.5)]))
fillet2.Radius = 3

sketch19 = doc.addObject("Sketcher::SketchObject", "Sketch018")
body.addObject(sketch19)
sketch19.AttachmentSupport = (doc.XY_Plane, [""])
sketch19.MapMode = "FlatFace"
sketch19.addGeometry([
    Part.Circle(V(280, 75, 0), V(0, 0, 1), 2.6),
    Part.Circle(V(270, 75, 0), V(0, 0, 1), 2.6),
    Part.Circle(V(270, 5, 0), V(0, 0, 1), 2.6),
    Part.Circle(V(280, 5, 0), V(0, 0, 1), 2.6),
], False)
sketch19.addConstraint([
    Sketcher.Constraint("Equal", 0, 1),
    Sketcher.Constraint("Equal", 1, 2),
    Sketcher.Constraint("Equal", 2, 3),
    Sketcher.Constraint("Horizontal", 0, 3, 1, 3),
    Sketcher.Constraint("Horizontal", 2, 3, 3, 3),
    Sketcher.Constraint("Vertical", 1, 3, 2, 3),
    Sketcher.Constraint("Vertical", 0, 3, 3, 3),
    Sketcher.Constraint("Diameter", 0, 5.2),
    Sketcher.Constraint("DistanceX", -1, 1, 0, 3, 280.0),
    Sketcher.Constraint("DistanceY", -1, 1, 0, 3, 75.0),
    Sketcher.Constraint("DistanceX", -1, 1, 1, 3, 270.0),
    Sketcher.Constraint("DistanceY", -1, 1, 2, 3, 5.0),
])
pocket16 = doc.addObject("PartDesign::Pocket", "Pocket015")
body.addObject(pocket16)
pocket16.Profile = sketch19
pocket16.Type = "ThroughAll"
pocket16.Reversed = True

sketch20 = doc.addObject("Sketcher::SketchObject", "Sketch019")
body.addObject(sketch20)
sketch20.AttachmentSupport = (doc.XY_Plane, [""])
sketch20.MapMode = "FlatFace"
sketch20.AttachmentOffset = App.Placement(V(0, 0, 7), App.Rotation())
sketch20.addGeometry([
    Part.Circle(V(270, 75, 0), V(0, 0, 1), 4.5),
    Part.Circle(V(280, 75, 0), V(0, 0, 1), 4.5),
    Part.Circle(V(280, 5, 0), V(0, 0, 1), 4.5),
    Part.Circle(V(270, 5, 0), V(0, 0, 1), 4.5),
], False)
sketch20.addConstraint([
    Sketcher.Constraint("Equal", 0, 1),
    Sketcher.Constraint("Equal", 1, 2),
    Sketcher.Constraint("Equal", 2, 3),
    Sketcher.Constraint("Horizontal", 0, 3, 1, 3),
    Sketcher.Constraint("Horizontal", 2, 3, 3, 3),
    Sketcher.Constraint("Vertical", 1, 3, 2, 3),
    Sketcher.Constraint("Vertical", 0, 3, 3, 3),
    Sketcher.Constraint("Diameter", 0, 9.0),
    Sketcher.Constraint("DistanceX", -1, 1, 0, 3, 270.0),
    Sketcher.Constraint("DistanceY", -1, 1, 0, 3, 75.0),
    Sketcher.Constraint("DistanceX", -1, 1, 1, 3, 280.0),
    Sketcher.Constraint("DistanceY", -1, 1, 2, 3, 5.0),
])
pocket17 = doc.addObject("PartDesign::Pocket", "Pocket016")
body.addObject(pocket17)
pocket17.Profile = sketch20
pocket17.Length = 5

sketch21 = doc.addObject("Sketcher::SketchObject", "Sketch020")
body.addObject(sketch21)
sketch21.AttachmentSupport = (doc.XY_Plane, [""])
sketch21.MapMode = "FlatFace"
sketch21.AttachmentOffset = App.Placement(V(0, 0, 7), App.Rotation())
sketch21.addGeometry([
    Part.LineSegment(V(266, 80, 0), V(266, 75, 0)),
    Part.LineSegment(V(266, 75, 0), V(274, 75, 0)),
    Part.LineSegment(V(274, 75, 0), V(274, 80, 0)),
    Part.LineSegment(V(274, 80, 0), V(266, 80, 0)),
    Part.LineSegment(V(276, 80, 0), V(276, 75, 0)),
    Part.LineSegment(V(276, 75, 0), V(284, 75, 0)),
    Part.LineSegment(V(284, 75, 0), V(284, 80, 0)),
    Part.LineSegment(V(284, 80, 0), V(276, 80, 0)),
    Part.LineSegment(V(266, 5, 0), V(266, 0, 0)),
    Part.LineSegment(V(266, 0, 0), V(274, 0, 0)),
    Part.LineSegment(V(274, 0, 0), V(274, 5, 0)),
    Part.LineSegment(V(274, 5, 0), V(266, 5, 0)),
    Part.LineSegment(V(276, 5, 0), V(276, 0, 0)),
    Part.LineSegment(V(276, 0, 0), V(284, 0, 0)),
    Part.LineSegment(V(284, 0, 0), V(284, 5, 0)),
    Part.LineSegment(V(284, 5, 0), V(276, 5, 0)),
], False)
sketch21.addConstraint([
    Sketcher.Constraint("Coincident", 0, 2, 1, 1),
    Sketcher.Constraint("Coincident", 1, 2, 2, 1),
    Sketcher.Constraint("Coincident", 2, 2, 3, 1),
    Sketcher.Constraint("Coincident", 3, 2, 0, 1),
    Sketcher.Constraint("Coincident", 4, 2, 5, 1),
    Sketcher.Constraint("Coincident", 5, 2, 6, 1),
    Sketcher.Constraint("Coincident", 6, 2, 7, 1),
    Sketcher.Constraint("Coincident", 7, 2, 4, 1),
    Sketcher.Constraint("Coincident", 8, 2, 9, 1),
    Sketcher.Constraint("Coincident", 9, 2, 10, 1),
    Sketcher.Constraint("Coincident", 10, 2, 11, 1),
    Sketcher.Constraint("Coincident", 11, 2, 8, 1),
    Sketcher.Constraint("Coincident", 12, 2, 13, 1),
    Sketcher.Constraint("Coincident", 13, 2, 14, 1),
    Sketcher.Constraint("Coincident", 14, 2, 15, 1),
    Sketcher.Constraint("Coincident", 15, 2, 12, 1),
    Sketcher.Constraint("Vertical", 0),
    Sketcher.Constraint("Horizontal", 1),
    Sketcher.Constraint("Vertical", 2),
    Sketcher.Constraint("Horizontal", 3),
    Sketcher.Constraint("Vertical", 4),
    Sketcher.Constraint("Horizontal", 5),
    Sketcher.Constraint("Vertical", 6),
    Sketcher.Constraint("Horizontal", 7),
    Sketcher.Constraint("Vertical", 8),
    Sketcher.Constraint("Horizontal", 9),
    Sketcher.Constraint("Vertical", 10),
    Sketcher.Constraint("Horizontal", 11),
    Sketcher.Constraint("Vertical", 12),
    Sketcher.Constraint("Horizontal", 13),
    Sketcher.Constraint("Vertical", 14),
    Sketcher.Constraint("Horizontal", 15),
    Sketcher.Constraint("PointOnObject", 8, 2, -1),
    Sketcher.Constraint("PointOnObject", 12, 2, -1),
    Sketcher.Constraint("Horizontal", 1, 2, 4, 2),
    Sketcher.Constraint("Horizontal", 3, 2, 6, 2),
    Sketcher.Constraint("Horizontal", 11, 2, 14, 2),
    Sketcher.Constraint("Vertical", 3, 2, 8, 2),
    Sketcher.Constraint("Vertical", 2, 2, 9, 2),
    Sketcher.Constraint("Vertical", 7, 2, 12, 2),
    Sketcher.Constraint("Vertical", 6, 2, 13, 2),
    Sketcher.Constraint("Equal", 3, 5),
    Sketcher.Constraint("Equal", 6, 8),
    Sketcher.Constraint("DistanceX", 1, 1, 1, 2, 9.0),
    Sketcher.Constraint("DistanceY", 0, 2, 0, 1, 5.0),
    Sketcher.Constraint("DistanceY", -1, 1, 0, 2, 75.0),
    Sketcher.Constraint("DistanceX", 1, 2, 4, 2, 1.0),
    Sketcher.Constraint("DistanceX", -1, 1, 0, 2, 265.5),
])
pocket18 = doc.addObject("PartDesign::Pocket", "Pocket017")
body.addObject(pocket18)
pocket18.Profile = sketch21
pocket18.Length = 5
doc.recompute()

chamfer4 = doc.addObject("PartDesign::Chamfer", "Chamfer003")
body.addObject(chamfer4)
chamfer4.Base = (pocket18, edges_at(pocket18, [(275, 0, 7), (275, 80, 7)]))
chamfer4.Size = 5

doc.recompute()
